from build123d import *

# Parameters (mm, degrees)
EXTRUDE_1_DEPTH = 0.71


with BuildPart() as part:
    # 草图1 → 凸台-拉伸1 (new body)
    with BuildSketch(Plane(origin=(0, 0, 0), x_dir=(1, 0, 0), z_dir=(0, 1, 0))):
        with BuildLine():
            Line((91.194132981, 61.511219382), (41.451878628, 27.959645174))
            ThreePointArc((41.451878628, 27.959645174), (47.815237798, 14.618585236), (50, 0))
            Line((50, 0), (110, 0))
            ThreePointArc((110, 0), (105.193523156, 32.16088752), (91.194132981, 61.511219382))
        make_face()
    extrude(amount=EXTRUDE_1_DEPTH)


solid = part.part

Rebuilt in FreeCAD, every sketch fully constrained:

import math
import FreeCAD as App
import Part
import Sketcher
from FreeCAD import Vector
Q = App.Units.Quantity

doc = App.newDocument("Part")
body = doc.addObject("PartDesign::Body", "Body")

# Sketch on XZ plane
sketch1 = doc.addObject("Sketcher::SketchObject", "Sketch")
body.addObject(sketch1)
sketch1.AttachmentSupport = (doc.XZ_Plane, [""])
sketch1.MapMode = "FlatFace"
sketch1.addGeometry(Part.LineSegment(Vector(91.194133, -61.511219, 0), Vector(41.451879, -27.959645, 0)), False)
sketch1.addGeometry(Part.ArcOfCircle(Part.Circle(Vector(0, 0, 0), Vector(0, 0, 1), 50), math.radians(-34), math.radians(0)), False)
sketch1.addGeometry(Part.LineSegment(Vector(50, 0, 0), Vector(110, 0, 0)), False)
sketch1.addGeometry(Part.ArcOfCircle(Part.Circle(Vector(0, 0, 0), Vector(0, 0, 1), 110), math.radians(-34), math.radians(0)), False)
sketch1.addConstraint(Sketcher.Constraint("Coincident", 0, 2, 1, 1))
sketch1.addConstraint(Sketcher.Constraint("Coincident", 1, 2, 2, 1))
sketch1.addConstraint(Sketcher.Constraint("Coincident", 2, 2, 3, 2))
sketch1.addConstraint(Sketcher.Constraint("Coincident", 3, 1, 0, 1))
sketch1.addConstraint(Sketcher.Constraint("Horizontal", 2))
sketch1.addConstraint(Sketcher.Constraint("Coincident", 1, 3, -1, 1))
sketch1.addConstraint(Sketcher.Constraint("Coincident", 3, 3, -1, 1))
sketch1.addConstraint(Sketcher.Constraint("PointOnObject", 1, 2, -1))
sketch1.addConstraint(Sketcher.Constraint("Radius", 1, Q("50 mm")))
sketch1.addConstraint(Sketcher.Constraint("Radius", 3, Q("110 mm")))
sketch1.addConstraint(Sketcher.Constraint("Angle", 0, Q("146 deg")))
sketch1.addConstraint(Sketcher.Constraint("DistanceX", -1, 1, 0, 2, Q("41.451879 mm")))
pad1 = doc.addObject("PartDesign::Pad", "Pad")
body.addObject(pad1)
pad1.Profile = sketch1
pad1.Length = 0.71
pad1.Reversed = True

doc.recompute()
